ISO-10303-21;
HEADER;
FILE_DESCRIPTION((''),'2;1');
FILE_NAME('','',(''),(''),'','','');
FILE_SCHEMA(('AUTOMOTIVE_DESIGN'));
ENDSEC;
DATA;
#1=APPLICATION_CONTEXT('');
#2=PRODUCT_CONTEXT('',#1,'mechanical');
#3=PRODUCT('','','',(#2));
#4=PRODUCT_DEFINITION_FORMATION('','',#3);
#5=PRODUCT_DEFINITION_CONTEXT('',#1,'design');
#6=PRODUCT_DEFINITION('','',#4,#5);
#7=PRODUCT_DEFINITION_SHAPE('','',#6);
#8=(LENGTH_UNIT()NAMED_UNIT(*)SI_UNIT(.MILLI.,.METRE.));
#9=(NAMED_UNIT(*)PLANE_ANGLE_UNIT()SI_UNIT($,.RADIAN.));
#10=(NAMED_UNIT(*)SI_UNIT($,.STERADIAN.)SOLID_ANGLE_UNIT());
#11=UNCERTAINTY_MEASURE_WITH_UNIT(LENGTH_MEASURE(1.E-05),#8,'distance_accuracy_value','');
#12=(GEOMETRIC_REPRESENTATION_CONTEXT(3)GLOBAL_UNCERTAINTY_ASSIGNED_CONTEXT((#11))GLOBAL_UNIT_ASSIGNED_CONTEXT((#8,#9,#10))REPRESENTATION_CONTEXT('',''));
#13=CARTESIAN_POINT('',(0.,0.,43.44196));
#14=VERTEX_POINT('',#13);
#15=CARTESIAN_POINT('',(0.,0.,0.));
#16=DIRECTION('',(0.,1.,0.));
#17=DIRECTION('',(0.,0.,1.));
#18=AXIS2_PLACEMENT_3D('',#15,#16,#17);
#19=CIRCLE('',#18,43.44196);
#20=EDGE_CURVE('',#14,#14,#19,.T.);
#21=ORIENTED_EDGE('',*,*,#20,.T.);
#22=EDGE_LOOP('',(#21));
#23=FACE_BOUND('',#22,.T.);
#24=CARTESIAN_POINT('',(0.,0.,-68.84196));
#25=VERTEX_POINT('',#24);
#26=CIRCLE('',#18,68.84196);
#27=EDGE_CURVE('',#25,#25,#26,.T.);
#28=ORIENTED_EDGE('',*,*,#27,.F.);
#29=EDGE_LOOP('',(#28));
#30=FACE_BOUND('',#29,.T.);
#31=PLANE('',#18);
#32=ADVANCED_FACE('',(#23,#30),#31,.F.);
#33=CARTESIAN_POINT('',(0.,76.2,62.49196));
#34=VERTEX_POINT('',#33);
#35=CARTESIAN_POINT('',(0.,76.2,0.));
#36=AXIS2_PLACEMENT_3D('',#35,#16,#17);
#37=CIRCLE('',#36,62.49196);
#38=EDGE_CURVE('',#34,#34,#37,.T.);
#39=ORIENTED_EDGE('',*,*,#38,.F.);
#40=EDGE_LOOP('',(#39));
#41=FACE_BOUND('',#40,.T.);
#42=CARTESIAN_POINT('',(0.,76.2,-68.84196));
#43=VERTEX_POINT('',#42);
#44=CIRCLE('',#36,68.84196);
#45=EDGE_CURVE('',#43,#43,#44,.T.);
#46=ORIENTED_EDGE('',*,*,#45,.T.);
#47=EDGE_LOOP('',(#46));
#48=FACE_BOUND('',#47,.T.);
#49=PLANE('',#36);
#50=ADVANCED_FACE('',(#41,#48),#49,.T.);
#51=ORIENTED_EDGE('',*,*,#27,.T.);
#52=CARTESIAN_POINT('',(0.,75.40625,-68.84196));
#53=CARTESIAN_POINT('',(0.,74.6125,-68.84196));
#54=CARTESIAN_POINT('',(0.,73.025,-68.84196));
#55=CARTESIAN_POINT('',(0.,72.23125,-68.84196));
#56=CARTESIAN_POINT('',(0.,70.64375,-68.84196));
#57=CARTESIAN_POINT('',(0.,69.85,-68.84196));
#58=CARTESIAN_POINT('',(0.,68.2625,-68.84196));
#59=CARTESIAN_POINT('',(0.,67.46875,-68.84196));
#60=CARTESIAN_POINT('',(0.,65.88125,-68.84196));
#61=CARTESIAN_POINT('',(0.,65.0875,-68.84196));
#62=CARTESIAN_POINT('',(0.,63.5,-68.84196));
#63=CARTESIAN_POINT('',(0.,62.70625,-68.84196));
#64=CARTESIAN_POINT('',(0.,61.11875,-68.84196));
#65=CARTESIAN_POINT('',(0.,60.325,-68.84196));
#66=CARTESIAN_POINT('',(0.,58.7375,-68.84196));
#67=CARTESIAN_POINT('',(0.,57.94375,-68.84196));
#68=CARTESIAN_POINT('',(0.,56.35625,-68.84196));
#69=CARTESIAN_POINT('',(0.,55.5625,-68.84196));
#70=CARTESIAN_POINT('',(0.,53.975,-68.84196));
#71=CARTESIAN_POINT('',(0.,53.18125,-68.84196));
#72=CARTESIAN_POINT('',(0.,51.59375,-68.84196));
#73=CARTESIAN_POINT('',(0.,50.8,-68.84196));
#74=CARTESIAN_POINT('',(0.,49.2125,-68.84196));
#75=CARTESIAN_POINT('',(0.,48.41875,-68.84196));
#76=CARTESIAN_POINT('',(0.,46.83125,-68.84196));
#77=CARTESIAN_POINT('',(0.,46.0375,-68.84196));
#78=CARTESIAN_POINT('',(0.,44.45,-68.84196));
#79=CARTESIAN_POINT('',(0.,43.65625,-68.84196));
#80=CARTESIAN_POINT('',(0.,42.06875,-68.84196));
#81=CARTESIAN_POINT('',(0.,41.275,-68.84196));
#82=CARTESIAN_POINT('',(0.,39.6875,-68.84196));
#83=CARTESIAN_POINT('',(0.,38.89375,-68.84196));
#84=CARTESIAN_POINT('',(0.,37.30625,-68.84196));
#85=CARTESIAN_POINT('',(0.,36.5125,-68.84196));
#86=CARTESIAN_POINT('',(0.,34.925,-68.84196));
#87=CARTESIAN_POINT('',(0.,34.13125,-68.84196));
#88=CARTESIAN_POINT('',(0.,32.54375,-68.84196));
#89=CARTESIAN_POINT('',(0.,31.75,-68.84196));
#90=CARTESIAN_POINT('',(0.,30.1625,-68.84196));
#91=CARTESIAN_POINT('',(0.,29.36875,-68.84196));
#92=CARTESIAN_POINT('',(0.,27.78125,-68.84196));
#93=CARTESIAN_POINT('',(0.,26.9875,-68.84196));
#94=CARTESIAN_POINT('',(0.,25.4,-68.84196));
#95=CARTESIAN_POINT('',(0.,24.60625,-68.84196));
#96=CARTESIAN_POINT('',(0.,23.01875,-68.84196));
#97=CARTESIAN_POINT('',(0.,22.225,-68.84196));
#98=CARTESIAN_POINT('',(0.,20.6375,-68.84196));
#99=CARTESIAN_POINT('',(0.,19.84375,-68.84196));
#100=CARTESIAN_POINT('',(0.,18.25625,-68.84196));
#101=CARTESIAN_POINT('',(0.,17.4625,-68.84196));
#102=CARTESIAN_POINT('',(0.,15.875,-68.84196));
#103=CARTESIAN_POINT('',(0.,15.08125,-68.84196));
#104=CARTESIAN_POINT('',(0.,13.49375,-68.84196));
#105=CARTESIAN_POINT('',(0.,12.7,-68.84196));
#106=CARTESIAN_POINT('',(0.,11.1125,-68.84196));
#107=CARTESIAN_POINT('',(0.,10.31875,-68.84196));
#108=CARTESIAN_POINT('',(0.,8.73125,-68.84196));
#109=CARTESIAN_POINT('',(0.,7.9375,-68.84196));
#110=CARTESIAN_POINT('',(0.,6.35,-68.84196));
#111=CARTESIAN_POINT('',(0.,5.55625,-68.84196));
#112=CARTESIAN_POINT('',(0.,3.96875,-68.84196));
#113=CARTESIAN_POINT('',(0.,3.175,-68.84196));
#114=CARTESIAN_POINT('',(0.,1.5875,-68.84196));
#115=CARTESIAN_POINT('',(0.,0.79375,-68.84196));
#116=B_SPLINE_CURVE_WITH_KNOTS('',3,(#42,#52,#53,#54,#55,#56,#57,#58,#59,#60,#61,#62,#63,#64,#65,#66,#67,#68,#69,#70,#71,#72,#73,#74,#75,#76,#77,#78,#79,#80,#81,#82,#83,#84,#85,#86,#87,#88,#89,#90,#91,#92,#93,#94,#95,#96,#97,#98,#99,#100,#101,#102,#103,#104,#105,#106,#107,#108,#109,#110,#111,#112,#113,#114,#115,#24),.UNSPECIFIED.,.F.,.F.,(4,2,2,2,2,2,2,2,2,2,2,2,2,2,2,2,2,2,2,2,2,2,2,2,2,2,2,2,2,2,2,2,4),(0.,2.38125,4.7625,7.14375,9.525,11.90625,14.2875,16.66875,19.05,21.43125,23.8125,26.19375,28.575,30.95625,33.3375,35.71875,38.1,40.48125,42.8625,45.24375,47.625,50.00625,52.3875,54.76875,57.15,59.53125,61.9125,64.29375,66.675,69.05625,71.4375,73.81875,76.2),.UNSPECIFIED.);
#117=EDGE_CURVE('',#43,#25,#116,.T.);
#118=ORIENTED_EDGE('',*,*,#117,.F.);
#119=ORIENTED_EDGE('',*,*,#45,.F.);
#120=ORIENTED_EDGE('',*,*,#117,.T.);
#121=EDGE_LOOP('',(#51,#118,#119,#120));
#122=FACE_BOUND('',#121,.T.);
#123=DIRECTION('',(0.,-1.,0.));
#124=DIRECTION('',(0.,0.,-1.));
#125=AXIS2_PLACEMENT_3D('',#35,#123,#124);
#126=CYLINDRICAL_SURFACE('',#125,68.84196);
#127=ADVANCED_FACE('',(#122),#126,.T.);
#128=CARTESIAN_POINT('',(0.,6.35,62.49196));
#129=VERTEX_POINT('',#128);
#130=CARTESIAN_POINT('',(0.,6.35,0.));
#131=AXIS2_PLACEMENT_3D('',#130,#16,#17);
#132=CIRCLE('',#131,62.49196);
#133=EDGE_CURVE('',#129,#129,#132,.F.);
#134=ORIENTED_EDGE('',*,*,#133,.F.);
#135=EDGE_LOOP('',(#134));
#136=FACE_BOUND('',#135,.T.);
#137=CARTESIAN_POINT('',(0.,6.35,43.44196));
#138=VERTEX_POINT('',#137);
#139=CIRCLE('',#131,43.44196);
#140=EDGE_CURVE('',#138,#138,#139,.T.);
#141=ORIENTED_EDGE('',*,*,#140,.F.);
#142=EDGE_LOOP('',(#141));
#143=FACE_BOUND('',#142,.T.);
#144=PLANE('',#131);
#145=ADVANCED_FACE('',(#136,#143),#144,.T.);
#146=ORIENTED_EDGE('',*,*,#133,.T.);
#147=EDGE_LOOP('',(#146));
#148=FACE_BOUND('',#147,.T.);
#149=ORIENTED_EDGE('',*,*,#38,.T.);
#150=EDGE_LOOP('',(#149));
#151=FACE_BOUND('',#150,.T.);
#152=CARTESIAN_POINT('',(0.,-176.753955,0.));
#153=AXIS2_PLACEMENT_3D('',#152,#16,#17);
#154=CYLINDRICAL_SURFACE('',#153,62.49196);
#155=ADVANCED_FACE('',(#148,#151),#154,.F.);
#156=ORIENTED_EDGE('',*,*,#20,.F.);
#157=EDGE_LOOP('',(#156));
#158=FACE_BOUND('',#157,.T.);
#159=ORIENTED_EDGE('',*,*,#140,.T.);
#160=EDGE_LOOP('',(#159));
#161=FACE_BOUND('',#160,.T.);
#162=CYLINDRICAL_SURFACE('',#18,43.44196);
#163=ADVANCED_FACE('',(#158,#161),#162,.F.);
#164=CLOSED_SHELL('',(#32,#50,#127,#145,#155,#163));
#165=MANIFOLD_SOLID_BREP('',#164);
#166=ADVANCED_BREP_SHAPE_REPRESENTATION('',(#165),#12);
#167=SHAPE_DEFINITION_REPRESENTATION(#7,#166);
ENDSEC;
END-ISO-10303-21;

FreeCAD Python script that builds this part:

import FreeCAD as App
import Part
import Sketcher
Q = App.Units.Quantity

doc = App.newDocument("Part")
body = doc.addObject("PartDesign::Body", "Body")

sketch1 = doc.addObject("Sketcher::SketchObject", "Sketch")
body.addObject(sketch1)
sketch1.AttachmentSupport = (doc.XZ_Plane, [""])
sketch1.MapMode = "FlatFace"
sketch1.addGeometry(Part.Circle(App.Vector(0, 0, 0), App.Vector(0, 0, 1), 69), False)
sketch1.addConstraint(Sketcher.Constraint("Coincident", 0, 3, -1, 1))
sketch1.addConstraint(Sketcher.Constraint("Diameter", 0, Q("137.68392 mm")))
pad1 = doc.addObject("PartDesign::Pad", "Pad")
body.addObject(pad1)
pad1.Profile = sketch1
pad1.Length = Q("3 in")
pad1.Reversed = True

sketch2 = doc.addObject("Sketcher::SketchObject", "Sketch001")
body.addObject(sketch2)
sketch2.AttachmentSupport = (doc.XZ_Plane, [""])
sketch2.MapMode = "FlatFace"
sketch2.AttachmentOffset = App.Placement(App.Vector(0, 0, -3 * 25.4), App.Rotation())
sketch2.addGeometry(Part.Circle(App.Vector(0, 0, 0), App.Vector(0, 0, 1), 62), False)
sketch2.addConstraint(Sketcher.Constraint("Coincident", 0, 3, -1, 1))
sketch2.addConstraint(Sketcher.Constraint("Diameter", 0, Q("124.98392 mm")))
pocket1 = doc.addObject("PartDesign::Pocket", "Pocket")
body.addObject(pocket1)
pocket1.Profile = sketch2
pocket1.Length = Q("2.75 in")
pocket1.Reversed = True

sketch3 = doc.addObject("Sketcher::SketchObject", "Sketch002")
body.addObject(sketch3)
sketch3.AttachmentSupport = (doc.XZ_Plane, [""])
sketch3.MapMode = "FlatFace"
sketch3.AttachmentOffset = App.Placement(App.Vector(0, 0, -0.25 * 25.4), App.Rotation())
sketch3.addGeometry(Part.Circle(App.Vector(0, 0, 0), App.Vector(0, 0, 1), 43), False)
sketch3.addConstraint(Sketcher.Constraint("Coincident", 0, 3, -1, 1))
sketch3.addConstraint(Sketcher.Constraint("Diameter", 0, Q("86.88392 mm")))
pocket2 = doc.addObject("PartDesign::Pocket", "Pocket001")
body.addObject(pocket2)
pocket2.Profile = sketch3
pocket2.Type = "ThroughAll"
pocket2.Reversed = True

doc.recompute()
